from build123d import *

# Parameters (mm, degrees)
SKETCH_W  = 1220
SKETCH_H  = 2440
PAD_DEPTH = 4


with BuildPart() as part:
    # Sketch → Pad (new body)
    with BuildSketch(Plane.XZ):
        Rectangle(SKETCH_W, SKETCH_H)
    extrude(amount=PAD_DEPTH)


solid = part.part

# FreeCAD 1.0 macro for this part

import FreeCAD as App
import Part
import Sketcher
from FreeCAD import Vector

doc = App.newDocument("Part")
body = doc.addObject("PartDesign::Body", "Body")

# Sketch on XZ plane
sketch1 = doc.addObject("Sketcher::SketchObject", "Sketch")
body.addObject(sketch1)
sketch1.AttachmentSupport = (doc.XZ_Plane, [""])
sketch1.MapMode = "FlatFace"
sketch1.addGeometry([
    Part.LineSegment(Vector(-610, 1220, 0), Vector(-610, -1220, 0)),
    Part.LineSegment(Vector(-610, -1220, 0), Vector(610, -1220, 0)),
    Part.LineSegment(Vector(610, -1220, 0), Vector(610, 1220, 0)),
    Part.LineSegment(Vector(610, 1220, 0), Vector(-610, 1220, 0)),
], False)
sketch1.addConstraint([
    Sketcher.Constraint("Coincident", 0, 2, 1, 1),
    Sketcher.Constraint("Coincident", 1, 2, 2, 1),
    Sketcher.Constraint("Coincident", 2, 2, 3, 1),
    Sketcher.Constraint("Coincident", 3, 2, 0, 1),
    Sketcher.Constraint("Vertical", 0),
    Sketcher.Constraint("Horizontal", 1),
    Sketcher.Constraint("Vertical", 2),
    Sketcher.Constraint("Horizontal", 3),
    Sketcher.Constraint("Symmetric", 0, 2, 2, 2, -1, 1),
    Sketcher.Constraint("DistanceX", 1, 1, 1, 2, 1220.0),
    Sketcher.Constraint("DistanceY", 0, 2, 0, 1, 2440.0),
])
pad1 = doc.addObject("PartDesign::Pad", "Pad")
body.addObject(pad1)
pad1.Profile = sketch1
pad1.Length = 4

doc.recompute()
